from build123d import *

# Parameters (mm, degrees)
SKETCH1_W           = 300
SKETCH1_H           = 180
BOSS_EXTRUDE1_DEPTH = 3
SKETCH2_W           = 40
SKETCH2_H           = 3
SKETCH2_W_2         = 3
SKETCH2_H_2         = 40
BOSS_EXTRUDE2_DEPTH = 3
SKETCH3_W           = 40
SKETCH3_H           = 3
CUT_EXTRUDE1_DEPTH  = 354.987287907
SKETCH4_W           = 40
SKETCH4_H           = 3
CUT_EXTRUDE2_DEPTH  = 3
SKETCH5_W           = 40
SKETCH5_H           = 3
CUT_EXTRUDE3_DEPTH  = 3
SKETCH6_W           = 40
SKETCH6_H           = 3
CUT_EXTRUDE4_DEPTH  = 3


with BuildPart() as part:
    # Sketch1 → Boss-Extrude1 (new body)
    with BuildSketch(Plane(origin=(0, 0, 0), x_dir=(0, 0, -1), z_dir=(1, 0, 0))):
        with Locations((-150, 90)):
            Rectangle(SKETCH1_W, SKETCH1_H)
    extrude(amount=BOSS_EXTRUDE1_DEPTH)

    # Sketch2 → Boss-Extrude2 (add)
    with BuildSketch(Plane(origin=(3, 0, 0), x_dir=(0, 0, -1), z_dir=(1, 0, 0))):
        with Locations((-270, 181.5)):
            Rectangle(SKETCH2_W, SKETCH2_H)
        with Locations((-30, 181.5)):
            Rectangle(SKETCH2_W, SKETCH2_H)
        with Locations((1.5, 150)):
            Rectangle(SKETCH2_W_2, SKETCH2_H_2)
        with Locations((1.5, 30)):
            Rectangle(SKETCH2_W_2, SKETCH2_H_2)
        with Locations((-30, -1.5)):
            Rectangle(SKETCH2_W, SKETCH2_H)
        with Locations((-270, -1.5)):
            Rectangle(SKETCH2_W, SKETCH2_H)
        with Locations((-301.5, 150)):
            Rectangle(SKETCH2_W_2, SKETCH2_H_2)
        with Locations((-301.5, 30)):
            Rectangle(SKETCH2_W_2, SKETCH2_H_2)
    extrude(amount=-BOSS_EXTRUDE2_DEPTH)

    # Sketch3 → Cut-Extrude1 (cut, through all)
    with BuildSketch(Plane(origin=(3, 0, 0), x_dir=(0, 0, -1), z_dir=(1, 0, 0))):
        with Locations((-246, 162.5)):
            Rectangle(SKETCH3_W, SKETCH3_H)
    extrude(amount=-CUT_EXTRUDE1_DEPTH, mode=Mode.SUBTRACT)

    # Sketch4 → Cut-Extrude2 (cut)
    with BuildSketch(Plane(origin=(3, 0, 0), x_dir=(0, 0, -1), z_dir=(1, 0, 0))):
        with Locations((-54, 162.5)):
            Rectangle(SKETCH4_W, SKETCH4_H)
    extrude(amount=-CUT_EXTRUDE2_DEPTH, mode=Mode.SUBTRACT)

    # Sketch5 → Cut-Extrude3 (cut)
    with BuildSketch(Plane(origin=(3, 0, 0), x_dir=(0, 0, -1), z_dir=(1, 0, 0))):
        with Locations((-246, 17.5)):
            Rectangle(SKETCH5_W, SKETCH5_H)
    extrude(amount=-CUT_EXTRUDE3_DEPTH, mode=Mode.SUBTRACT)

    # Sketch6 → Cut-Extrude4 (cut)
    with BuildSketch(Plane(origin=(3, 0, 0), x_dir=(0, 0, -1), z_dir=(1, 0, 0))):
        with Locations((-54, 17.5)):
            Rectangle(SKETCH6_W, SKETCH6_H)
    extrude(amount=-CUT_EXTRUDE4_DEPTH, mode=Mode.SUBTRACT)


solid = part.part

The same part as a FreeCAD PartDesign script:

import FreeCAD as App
import Part
import Sketcher
from FreeCAD import Vector

doc = App.newDocument("Part")
body = doc.addObject("PartDesign::Body", "Body")

sketch1 = body.newObject("Sketcher::SketchObject", "Sketch")
sketch1.AttachmentSupport = (doc.getObject("YZ_Plane"), [""])
sketch1.MapMode = "FlatFace"
sketch1.addGeometry(Part.LineSegment(Vector(180, 300, 0), Vector(0, 300, 0)), False)
sketch1.addGeometry(Part.LineSegment(Vector(0, 300, 0), Vector(0, 0, 0)), False)
sketch1.addGeometry(Part.LineSegment(Vector(0, 0, 0), Vector(180, 0, 0)), False)
sketch1.addGeometry(Part.LineSegment(Vector(180, 0, 0), Vector(180, 300, 0)), False)
sketch1.addConstraint(Sketcher.Constraint("Coincident", 0, 2, 1, 1))
sketch1.addConstraint(Sketcher.Constraint("Coincident", 1, 2, 2, 1))
sketch1.addConstraint(Sketcher.Constraint("Coincident", 2, 2, 3, 1))
sketch1.addConstraint(Sketcher.Constraint("Coincident", 3, 2, 0, 1))
sketch1.addConstraint(Sketcher.Constraint("Horizontal", 0))
sketch1.addConstraint(Sketcher.Constraint("Vertical", 1))
sketch1.addConstraint(Sketcher.Constraint("Horizontal", 2))
sketch1.addConstraint(Sketcher.Constraint("Vertical", 3))
sketch1.addConstraint(Sketcher.Constraint("Coincident", 1, 2, -1, 1))
sketch1.addConstraint(Sketcher.Constraint("DistanceX", 0, 2, 0, 1, 180.0))
sketch1.addConstraint(Sketcher.Constraint("DistanceY", 1, 2, 1, 1, 300.0))
pad1 = body.newObject("PartDesign::Pad", "Pad")
pad1.Profile = sketch1
pad1.Length = 3

sketch2 = body.newObject("Sketcher::SketchObject", "Sketch001")
sketch2.AttachmentSupport = (doc.getObject("YZ_Plane"), [""])
sketch2.MapMode = "FlatFace"
sketch2.AttachmentOffset = App.Placement(Vector(0, 0, 3), App.Rotation())
sketch2.addGeometry(Part.LineSegment(Vector(183, 290, 0), Vector(180, 290, 0)), False)
sketch2.addGeometry(Part.LineSegment(Vector(180, 290, 0), Vector(180, 250, 0)), False)
sketch2.addGeometry(Part.LineSegment(Vector(180, 250, 0), Vector(183, 250, 0)), False)
sketch2.addGeometry(Part.LineSegment(Vector(183, 250, 0), Vector(183, 290, 0)), False)
sketch2.addGeometry(Part.LineSegment(Vector(183, 50, 0), Vector(180, 50, 0)), False)
sketch2.addGeometry(Part.LineSegment(Vector(180, 50, 0), Vector(180, 10, 0)), False)
sketch2.addGeometry(Part.LineSegment(Vector(180, 10, 0), Vector(183, 10, 0)), False)
sketch2.addGeometry(Part.LineSegment(Vector(183, 10, 0), Vector(183, 50, 0)), False)
sketch2.addGeometry(Part.LineSegment(Vector(170, 0, 0), Vector(130, 0, 0)), False)
sketch2.addGeometry(Part.LineSegment(Vector(130, 0, 0), Vector(130, -3, 0)), False)
sketch2.addGeometry(Part.LineSegment(Vector(130, -3, 0), Vector(170, -3, 0)), False)
sketch2.addGeometry(Part.LineSegment(Vector(170, -3, 0), Vector(170, 0, 0)), False)
sketch2.addGeometry(Part.LineSegment(Vector(50, 0, 0), Vector(10, 0, 0)), False)
sketch2.addGeometry(Part.LineSegment(Vector(10, 0, 0), Vector(10, -3, 0)), False)
sketch2.addGeometry(Part.LineSegment(Vector(10, -3, 0), Vector(50, -3, 0)), False)
sketch2.addGeometry(Part.LineSegment(Vector(50, -3, 0), Vector(50, 0, 0)), False)
sketch2.addGeometry(Part.LineSegment(Vector(0, 50, 0), Vector(-3, 50, 0)), False)
sketch2.addGeometry(Part.LineSegment(Vector(-3, 50, 0), Vector(-3, 10, 0)), False)
sketch2.addGeometry(Part.LineSegment(Vector(-3, 10, 0), Vector(0, 10, 0)), False)
sketch2.addGeometry(Part.LineSegment(Vector(0, 10, 0), Vector(0, 50, 0)), False)
sketch2.addGeometry(Part.LineSegment(Vector(0, 290, 0), Vector(-3, 290, 0)), False)
sketch2.addGeometry(Part.LineSegment(Vector(-3, 290, 0), Vector(-3, 250, 0)), False)
sketch2.addGeometry(Part.LineSegment(Vector(-3, 250, 0), Vector(0, 250, 0)), False)
sketch2.addGeometry(Part.LineSegment(Vector(0, 250, 0), Vector(0, 290, 0)), False)
sketch2.addGeometry(Part.LineSegment(Vector(170, 303, 0), Vector(130, 303, 0)), False)
sketch2.addGeometry(Part.LineSegment(Vector(130, 303, 0), Vector(130, 300, 0)), False)
sketch2.addGeometry(Part.LineSegment(Vector(130, 300, 0), Vector(170, 300, 0)), False)
sketch2.addGeometry(Part.LineSegment(Vector(170, 300, 0), Vector(170, 303, 0)), False)
sketch2.addGeometry(Part.LineSegment(Vector(50, 303, 0), Vector(10, 303, 0)), False)
sketch2.addGeometry(Part.LineSegment(Vector(10, 303, 0), Vector(10, 300, 0)), False)
sketch2.addGeometry(Part.LineSegment(Vector(10, 300, 0), Vector(50, 300, 0)), False)
sketch2.addGeometry(Part.LineSegment(Vector(50, 300, 0), Vector(50, 303, 0)), False)
sketch2.addConstraint(Sketcher.Constraint("Coincident", 0, 2, 1, 1))
sketch2.addConstraint(Sketcher.Constraint("Coincident", 1, 2, 2, 1))
sketch2.addConstraint(Sketcher.Constraint("Coincident", 2, 2, 3, 1))
sketch2.addConstraint(Sketcher.Constraint("Coincident", 3, 2, 0, 1))
sketch2.addConstraint(Sketcher.Constraint("Coincident", 4, 2, 5, 1))
sketch2.addConstraint(Sketcher.Constraint("Coincident", 5, 2, 6, 1))
sketch2.addConstraint(Sketcher.Constraint("Coincident", 6, 2, 7, 1))
sketch2.addConstraint(Sketcher.Constraint("Coincident", 7, 2, 4, 1))
sketch2.addConstraint(Sketcher.Constraint("Coincident", 8, 2, 9, 1))
sketch2.addConstraint(Sketcher.Constraint("Coincident", 9, 2, 10, 1))
sketch2.addConstraint(Sketcher.Constraint("Coincident", 10, 2, 11, 1))
sketch2.addConstraint(Sketcher.Constraint("Coincident", 11, 2, 8, 1))
sketch2.addConstraint(Sketcher.Constraint("Coincident", 12, 2, 13, 1))
sketch2.addConstraint(Sketcher.Constraint("Coincident", 13, 2, 14, 1))
sketch2.addConstraint(Sketcher.Constraint("Coincident", 14, 2, 15, 1))
sketch2.addConstraint(Sketcher.Constraint("Coincident", 15, 2, 12, 1))
sketch2.addConstraint(Sketcher.Constraint("Coincident", 16, 2, 17, 1))
sketch2.addConstraint(Sketcher.Constraint("Coincident", 17, 2, 18, 1))
sketch2.addConstraint(Sketcher.Constraint("Coincident", 18, 2, 19, 1))
sketch2.addConstraint(Sketcher.Constraint("Coincident", 19, 2, 16, 1))
sketch2.addConstraint(Sketcher.Constraint("Coincident", 20, 2, 21, 1))
sketch2.addConstraint(Sketcher.Constraint("Coincident", 21, 2, 22, 1))
sketch2.addConstraint(Sketcher.Constraint("Coincident", 22, 2, 23, 1))
sketch2.addConstraint(Sketcher.Constraint("Coincident", 23, 2, 20, 1))
sketch2.addConstraint(Sketcher.Constraint("Coincident", 24, 2, 25, 1))
sketch2.addConstraint(Sketcher.Constraint("Coincident", 25, 2, 26, 1))
sketch2.addConstraint(Sketcher.Constraint("Coincident", 26, 2, 27, 1))
sketch2.addConstraint(Sketcher.Constraint("Coincident", 27, 2, 24, 1))
sketch2.addConstraint(Sketcher.Constraint("Coincident", 28, 2, 29, 1))
sketch2.addConstraint(Sketcher.Constraint("Coincident", 29, 2, 30, 1))
sketch2.addConstraint(Sketcher.Constraint("Coincident", 30, 2, 31, 1))
sketch2.addConstraint(Sketcher.Constraint("Coincident", 31, 2, 28, 1))
sketch2.addConstraint(Sketcher.Constraint("Horizontal", 0))
sketch2.addConstraint(Sketcher.Constraint("Vertical", 1))
sketch2.addConstraint(Sketcher.Constraint("Horizontal", 2))
sketch2.addConstraint(Sketcher.Constraint("Vertical", 3))
sketch2.addConstraint(Sketcher.Constraint("Horizontal", 4))
sketch2.addConstraint(Sketcher.Constraint("Vertical", 5))
sketch2.addConstraint(Sketcher.Constraint("Horizontal", 6))
sketch2.addConstraint(Sketcher.Constraint("Vertical", 7))
sketch2.addConstraint(Sketcher.Constraint("Horizontal", 8))
sketch2.addConstraint(Sketcher.Constraint("Vertical", 9))
sketch2.addConstraint(Sketcher.Constraint("Horizontal", 10))
sketch2.addConstraint(Sketcher.Constraint("Vertical", 11))
sketch2.addConstraint(Sketcher.Constraint("Horizontal", 12))
sketch2.addConstraint(Sketcher.Constraint("Vertical", 13))
sketch2.addConstraint(Sketcher.Constraint("Horizontal", 14))
sketch2.addConstraint(Sketcher.Constraint("Vertical", 15))
sketch2.addConstraint(Sketcher.Constraint("Horizontal", 16))
sketch2.addConstraint(Sketcher.Constraint("Vertical", 17))
sketch2.addConstraint(Sketcher.Constraint("Horizontal", 18))
sketch2.addConstraint(Sketcher.Constraint("Vertical", 19))
sketch2.addConstraint(Sketcher.Constraint("Horizontal", 20))
sketch2.addConstraint(Sketcher.Constraint("Vertical", 21))
sketch2.addConstraint(Sketcher.Constraint("Horizontal", 22))
sketch2.addConstraint(Sketcher.Constraint("Vertical", 23))
sketch2.addConstraint(Sketcher.Constraint("Horizontal", 24))
sketch2.addConstraint(Sketcher.Constraint("Vertical", 25))
sketch2.addConstraint(Sketcher.Constraint("Horizontal", 26))
sketch2.addConstraint(Sketcher.Constraint("Vertical", 27))
sketch2.addConstraint(Sketcher.Constraint("Horizontal", 28))
sketch2.addConstraint(Sketcher.Constraint("Vertical", 29))
sketch2.addConstraint(Sketcher.Constraint("Horizontal", 30))
sketch2.addConstraint(Sketcher.Constraint("Vertical", 31))
sketch2.addConstraint(Sketcher.Constraint("PointOnObject", 8, 2, -1))
sketch2.addConstraint(Sketcher.Constraint("PointOnObject", 12, 2, -1))
sketch2.addConstraint(Sketcher.Constraint("PointOnObject", 18, 2, -2))
sketch2.addConstraint(Sketcher.Constraint("PointOnObject", 22, 2, -2))
sketch2.addConstraint(Sketcher.Constraint("Horizontal", 10, 2, 13, 2))
sketch2.addConstraint(Sketcher.Constraint("Horizontal", 7, 2, 16, 2))
sketch2.addConstraint(Sketcher.Constraint("Horizontal", 6, 2, 17, 2))
sketch2.addConstraint(Sketcher.Constraint("Horizontal", 3, 2, 20, 2))
sketch2.addConstraint(Sketcher.Constraint("Horizontal", 2, 2, 21, 2))
sketch2.addConstraint(Sketcher.Constraint("Horizontal", 27, 2, 28, 2))
sketch2.addConstraint(Sketcher.Constraint("Horizontal", 26, 2, 29, 2))
sketch2.addConstraint(Sketcher.Constraint("Vertical", 1, 2, 4, 2))
sketch2.addConstraint(Sketcher.Constraint("Vertical", 3, 2, 6, 2))
sketch2.addConstraint(Sketcher.Constraint("Vertical", 17, 2, 20, 2))
sketch2.addConstraint(Sketcher.Constraint("Vertical", 9, 2, 24, 2))
sketch2.addConstraint(Sketcher.Constraint("Vertical", 11, 2, 26, 2))
sketch2.addConstraint(Sketcher.Constraint("Vertical", 13, 2, 28, 2))
sketch2.addConstraint(Sketcher.Constraint("Vertical", 15, 2, 30, 2))
sketch2.addConstraint(Sketcher.Constraint("Equal", 10, 12))
sketch2.addConstraint(Sketcher.Constraint("Equal", 6, 16))
sketch2.addConstraint(Sketcher.Constraint("Equal", 30, 1))
sketch2.addConstraint(Sketcher.Constraint("Equal", 3, 5))
sketch2.addConstraint(Sketcher.Constraint("Equal", 22, 9))
sketch2.addConstraint(Sketcher.Constraint("Equal", 15, 25))
sketch2.addConstraint(Sketcher.Constraint("DistanceX", 0, 2, 0, 1, 3.0))
sketch2.addConstraint(Sketcher.Constraint("DistanceX", 8, 2, 8, 1, 40.0))
sketch2.addConstraint(Sketcher.Constraint("DistanceX", -1, 1, 0, 2, 180.0))
sketch2.addConstraint(Sketcher.Constraint("DistanceY", -1, 1, 0, 2, 290.0))
sketch2.addConstraint(Sketcher.Constraint("DistanceY", -1, 1, 4, 2, 50.0))
sketch2.addConstraint(Sketcher.Constraint("DistanceX", -1, 1, 8, 2, 130.0))
sketch2.addConstraint(Sketcher.Constraint("DistanceX", -1, 1, 12, 2, 10.0))
sketch2.addConstraint(Sketcher.Constraint("DistanceY", -1, 1, 24, 2, 303.0))
pad2 = body.newObject("PartDesign::Pad", "Pad001")
pad2.Profile = sketch2
pad2.Length = 3
pad2.Reversed = True

sketch3 = body.newObject("Sketcher::SketchObject", "Sketch002")
sketch3.AttachmentSupport = (doc.getObject("YZ_Plane"), [""])
sketch3.MapMode = "FlatFace"
sketch3.AttachmentOffset = App.Placement(Vector(0, 0, 3), App.Rotation())
sketch3.addGeometry(Part.LineSegment(Vector(164, 266, 0), Vector(161, 266, 0)), False)
sketch3.addGeometry(Part.LineSegment(Vector(161, 266, 0), Vector(161, 226, 0)), False)
sketch3.addGeometry(Part.LineSegment(Vector(161, 226, 0), Vector(164, 226, 0)), False)
sketch3.addGeometry(Part.LineSegment(Vector(164, 226, 0), Vector(164, 266, 0)), False)
sketch3.addConstraint(Sketcher.Constraint("Coincident", 0, 2, 1, 1))
sketch3.addConstraint(Sketcher.Constraint("Coincident", 1, 2, 2, 1))
sketch3.addConstraint(Sketcher.Constraint("Coincident", 2, 2, 3, 1))
sketch3.addConstraint(Sketcher.Constraint("Coincident", 3, 2, 0, 1))
sketch3.addConstraint(Sketcher.Constraint("Horizontal", 0))
sketch3.addConstraint(Sketcher.Constraint("Vertical", 1))
sketch3.addConstraint(Sketcher.Constraint("Horizontal", 2))
sketch3.addConstraint(Sketcher.Constraint("Vertical", 3))
sketch3.addConstraint(Sketcher.Constraint("DistanceX", 0, 2, 0, 1, 3.0))
sketch3.addConstraint(Sketcher.Constraint("DistanceY", 1, 2, 1, 1, 40.0))
sketch3.addConstraint(Sketcher.Constraint("DistanceX", -1, 1, 0, 2, 161.0))
sketch3.addConstraint(Sketcher.Constraint("DistanceY", -1, 1, 0, 2, 266.0))
pocket1 = body.newObject("PartDesign::Pocket", "Pocket")
pocket1.Profile = sketch3
pocket1.Type = "ThroughAll"

sketch4 = body.newObject("Sketcher::SketchObject", "Sketch003")
sketch4.AttachmentSupport = (doc.getObject("YZ_Plane"), [""])
sketch4.MapMode = "FlatFace"
sketch4.AttachmentOffset = App.Placement(Vector(0, 0, 3), App.Rotation())
sketch4.addGeometry(Part.LineSegment(Vector(164, 74, 0), Vector(161, 74, 0)), False)
sketch4.addGeometry(Part.LineSegment(Vector(161, 74, 0), Vector(161, 34, 0)), False)
sketch4.addGeometry(Part.LineSegment(Vector(161, 34, 0), Vector(164, 34, 0)), False)
sketch4.addGeometry(Part.LineSegment(Vector(164, 34, 0), Vector(164, 74, 0)), False)
sketch4.addConstraint(Sketcher.Constraint("Coincident", 0, 2, 1, 1))
sketch4.addConstraint(Sketcher.Constraint("Coincident", 1, 2, 2, 1))
sketch4.addConstraint(Sketcher.Constraint("Coincident", 2, 2, 3, 1))
sketch4.addConstraint(Sketcher.Constraint("Coincident", 3, 2, 0, 1))
sketch4.addConstraint(Sketcher.Constraint("Horizontal", 0))
sketch4.addConstraint(Sketcher.Constraint("Vertical", 1))
sketch4.addConstraint(Sketcher.Constraint("Horizontal", 2))
sketch4.addConstraint(Sketcher.Constraint("Vertical", 3))
sketch4.addConstraint(Sketcher.Constraint("DistanceX", 0, 2, 0, 1, 3.0))
sketch4.addConstraint(Sketcher.Constraint("DistanceY", 1, 2, 1, 1, 40.0))
sketch4.addConstraint(Sketcher.Constraint("DistanceX", -1, 1, 0, 2, 161.0))
sketch4.addConstraint(Sketcher.Constraint("DistanceY", -1, 1, 0, 2, 74.0))
pocket2 = body.newObject("PartDesign::Pocket", "Pocket001")
pocket2.Profile = sketch4
pocket2.Length = 3

sketch5 = body.newObject("Sketcher::SketchObject", "Sketch004")
sketch5.AttachmentSupport = (doc.getObject("YZ_Plane"), [""])
sketch5.MapMode = "FlatFace"
sketch5.AttachmentOffset = App.Placement(Vector(0, 0, 3), App.Rotation())
sketch5.addGeometry(Part.LineSegment(Vector(19, 266, 0), Vector(16, 266, 0)), False)
sketch5.addGeometry(Part.LineSegment(Vector(16, 266, 0), Vector(16, 226, 0)), False)
sketch5.addGeometry(Part.LineSegment(Vector(16, 226, 0), Vector(19, 226, 0)), False)
sketch5.addGeometry(Part.LineSegment(Vector(19, 226, 0), Vector(19, 266, 0)), False)
sketch5.addConstraint(Sketcher.Constraint("Coincident", 0, 2, 1, 1))
sketch5.addConstraint(Sketcher.Constraint("Coincident", 1, 2, 2, 1))
sketch5.addConstraint(Sketcher.Constraint("Coincident", 2, 2, 3, 1))
sketch5.addConstraint(Sketcher.Constraint("Coincident", 3, 2, 0, 1))
sketch5.addConstraint(Sketcher.Constraint("Horizontal", 0))
sketch5.addConstraint(Sketcher.Constraint("Vertical", 1))
sketch5.addConstraint(Sketcher.Constraint("Horizontal", 2))
sketch5.addConstraint(Sketcher.Constraint("Vertical", 3))
sketch5.addConstraint(Sketcher.Constraint("DistanceX", 0, 2, 0, 1, 3.0))
sketch5.addConstraint(Sketcher.Constraint("DistanceY", 1, 2, 1, 1, 40.0))
sketch5.addConstraint(Sketcher.Constraint("DistanceX", -1, 1, 0, 2, 16.0))
sketch5.addConstraint(Sketcher.Constraint("DistanceY", -1, 1, 0, 2, 266.0))
pocket3 = body.newObject("PartDesign::Pocket", "Pocket002")
pocket3.Profile = sketch5
pocket3.Length = 3

sketch6 = body.newObject("Sketcher::SketchObject", "Sketch005")
sketch6.AttachmentSupport = (doc.getObject("YZ_Plane"), [""])
sketch6.MapMode = "FlatFace"
sketch6.AttachmentOffset = App.Placement(Vector(0, 0, 3), App.Rotation())
sketch6.addGeometry(Part.LineSegment(Vector(19, 74, 0), Vector(16, 74, 0)), False)
sketch6.addGeometry(Part.LineSegment(Vector(16, 74, 0), Vector(16, 34, 0)), False)
sketch6.addGeometry(Part.LineSegment(Vector(16, 34, 0), Vector(19, 34, 0)), False)
sketch6.addGeometry(Part.LineSegment(Vector(19, 34, 0), Vector(19, 74, 0)), False)
sketch6.addConstraint(Sketcher.Constraint("Coincident", 0, 2, 1, 1))
sketch6.addConstraint(Sketcher.Constraint("Coincident", 1, 2, 2, 1))
sketch6.addConstraint(Sketcher.Constraint("Coincident", 2, 2, 3, 1))
sketch6.addConstraint(Sketcher.Constraint("Coincident", 3, 2, 0, 1))
sketch6.addConstraint(Sketcher.Constraint("Horizontal", 0))
sketch6.addConstraint(Sketcher.Constraint("Vertical", 1))
sketch6.addConstraint(Sketcher.Constraint("Horizontal", 2))
sketch6.addConstraint(Sketcher.Constraint("Vertical", 3))
sketch6.addConstraint(Sketcher.Constraint("DistanceX", 0, 2, 0, 1, 3.0))
sketch6.addConstraint(Sketcher.Constraint("DistanceY", 1, 2, 1, 1, 40.0))
sketch6.addConstraint(Sketcher.Constraint("DistanceX", -1, 1, 0, 2, 16.0))
sketch6.addConstraint(Sketcher.Constraint("DistanceY", -1, 1, 0, 2, 74.0))
pocket4 = body.newObject("PartDesign::Pocket", "Pocket003")
pocket4.Profile = sketch6
pocket4.Length = 3

doc.recompute()
